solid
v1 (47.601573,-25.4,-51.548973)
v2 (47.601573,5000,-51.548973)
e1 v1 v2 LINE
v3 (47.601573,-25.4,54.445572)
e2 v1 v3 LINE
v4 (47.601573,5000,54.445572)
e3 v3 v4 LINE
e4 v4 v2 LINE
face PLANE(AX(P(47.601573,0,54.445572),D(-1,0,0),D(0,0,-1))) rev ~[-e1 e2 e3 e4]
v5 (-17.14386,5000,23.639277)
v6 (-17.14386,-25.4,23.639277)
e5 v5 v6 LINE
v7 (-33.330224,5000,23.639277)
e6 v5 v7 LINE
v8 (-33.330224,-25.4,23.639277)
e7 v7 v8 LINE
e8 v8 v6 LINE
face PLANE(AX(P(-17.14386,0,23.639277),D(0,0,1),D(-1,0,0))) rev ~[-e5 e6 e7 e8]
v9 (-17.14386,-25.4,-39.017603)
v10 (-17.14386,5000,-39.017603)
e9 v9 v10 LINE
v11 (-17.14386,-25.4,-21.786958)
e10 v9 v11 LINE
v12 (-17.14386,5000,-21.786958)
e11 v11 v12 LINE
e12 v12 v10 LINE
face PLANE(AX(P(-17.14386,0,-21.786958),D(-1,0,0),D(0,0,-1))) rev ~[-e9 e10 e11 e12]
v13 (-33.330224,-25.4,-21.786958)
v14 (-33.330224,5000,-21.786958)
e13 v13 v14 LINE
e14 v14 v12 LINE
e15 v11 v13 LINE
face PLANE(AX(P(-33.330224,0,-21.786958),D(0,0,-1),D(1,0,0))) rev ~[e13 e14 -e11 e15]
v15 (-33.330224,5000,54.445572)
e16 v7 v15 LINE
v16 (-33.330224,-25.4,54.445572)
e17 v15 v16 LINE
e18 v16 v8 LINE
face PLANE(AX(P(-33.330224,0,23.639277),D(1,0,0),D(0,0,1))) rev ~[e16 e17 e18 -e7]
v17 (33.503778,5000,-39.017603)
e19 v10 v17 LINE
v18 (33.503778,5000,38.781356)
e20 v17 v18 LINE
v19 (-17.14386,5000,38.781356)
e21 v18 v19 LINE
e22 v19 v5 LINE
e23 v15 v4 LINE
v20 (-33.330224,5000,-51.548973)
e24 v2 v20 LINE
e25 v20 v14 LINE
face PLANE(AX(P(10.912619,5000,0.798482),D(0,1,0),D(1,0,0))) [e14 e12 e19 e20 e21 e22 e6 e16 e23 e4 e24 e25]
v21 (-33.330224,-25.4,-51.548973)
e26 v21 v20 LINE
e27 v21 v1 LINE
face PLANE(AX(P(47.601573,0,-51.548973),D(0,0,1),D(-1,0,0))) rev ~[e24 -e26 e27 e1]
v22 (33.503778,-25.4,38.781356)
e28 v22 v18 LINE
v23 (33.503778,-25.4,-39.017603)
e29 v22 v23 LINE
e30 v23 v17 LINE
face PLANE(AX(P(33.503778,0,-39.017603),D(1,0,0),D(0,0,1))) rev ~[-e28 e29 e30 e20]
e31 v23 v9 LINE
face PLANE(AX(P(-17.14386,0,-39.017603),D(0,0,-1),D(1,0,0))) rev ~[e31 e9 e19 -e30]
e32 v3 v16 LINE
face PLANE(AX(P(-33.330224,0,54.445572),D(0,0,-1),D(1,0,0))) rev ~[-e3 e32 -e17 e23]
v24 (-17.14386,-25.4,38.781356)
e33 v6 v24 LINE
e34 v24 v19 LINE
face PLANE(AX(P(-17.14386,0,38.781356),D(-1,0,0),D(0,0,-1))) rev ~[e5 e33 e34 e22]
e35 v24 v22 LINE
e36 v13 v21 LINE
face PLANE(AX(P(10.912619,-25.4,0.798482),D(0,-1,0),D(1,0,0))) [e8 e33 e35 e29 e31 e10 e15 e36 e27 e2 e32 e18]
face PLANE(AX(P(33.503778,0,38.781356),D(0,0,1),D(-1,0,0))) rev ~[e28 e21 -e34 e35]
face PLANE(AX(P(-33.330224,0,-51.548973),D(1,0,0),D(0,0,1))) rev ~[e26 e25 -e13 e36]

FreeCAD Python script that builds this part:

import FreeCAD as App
import Part
import Sketcher
from FreeCAD import Vector
Q = App.Units.Quantity

doc = App.newDocument("Part")
body = doc.addObject("PartDesign::Body", "Body")

sketch1 = body.newObject("Sketcher::SketchObject", "Sketch")
sketch1.AttachmentSupport = (doc.getObject("XZ_Plane"), [""])
sketch1.MapMode = "FlatFace"
sketch1.addGeometry(Part.LineSegment(Vector(48, 54, 0), Vector(-33, 54, 0)), False)
sketch1.addGeometry(Part.LineSegment(Vector(-33, 54, 0), Vector(-33, 24, 0)), False)
sketch1.addGeometry(Part.LineSegment(Vector(-33, 24, 0), Vector(-17, 24, 0)), False)
sketch1.addGeometry(Part.LineSegment(Vector(-17, 24, 0), Vector(-17, 39, 0)), False)
sketch1.addGeometry(Part.LineSegment(Vector(-17, 39, 0), Vector(34, 39, 0)), False)
sketch1.addGeometry(Part.LineSegment(Vector(34, 39, 0), Vector(34, -39, 0)), False)
sketch1.addGeometry(Part.LineSegment(Vector(34, -39, 0), Vector(-17, -39, 0)), False)
sketch1.addGeometry(Part.LineSegment(Vector(-17, -39, 0), Vector(-17, -22, 0)), False)
sketch1.addGeometry(Part.LineSegment(Vector(-17, -22, 0), Vector(-33, -22, 0)), False)
sketch1.addGeometry(Part.LineSegment(Vector(-33, -22, 0), Vector(-33, -52, 0)), False)
sketch1.addGeometry(Part.LineSegment(Vector(-33, -52, 0), Vector(48, -52, 0)), False)
sketch1.addGeometry(Part.LineSegment(Vector(48, -52, 0), Vector(48, 54, 0)), False)
sketch1.addConstraint(Sketcher.Constraint("Coincident", 0, 2, 1, 1))
sketch1.addConstraint(Sketcher.Constraint("Coincident", 1, 2, 2, 1))
sketch1.addConstraint(Sketcher.Constraint("Coincident", 2, 2, 3, 1))
sketch1.addConstraint(Sketcher.Constraint("Coincident", 3, 2, 4, 1))
sketch1.addConstraint(Sketcher.Constraint("Coincident", 4, 2, 5, 1))
sketch1.addConstraint(Sketcher.Constraint("Coincident", 5, 2, 6, 1))
sketch1.addConstraint(Sketcher.Constraint("Coincident", 6, 2, 7, 1))
sketch1.addConstraint(Sketcher.Constraint("Coincident", 7, 2, 8, 1))
sketch1.addConstraint(Sketcher.Constraint("Coincident", 8, 2, 9, 1))
sketch1.addConstraint(Sketcher.Constraint("Coincident", 9, 2, 10, 1))
sketch1.addConstraint(Sketcher.Constraint("Coincident", 10, 2, 11, 1))
sketch1.addConstraint(Sketcher.Constraint("Coincident", 11, 2, 0, 1))
sketch1.addConstraint(Sketcher.Constraint("Horizontal", 0))
sketch1.addConstraint(Sketcher.Constraint("Vertical", 1))
sketch1.addConstraint(Sketcher.Constraint("Horizontal", 2))
sketch1.addConstraint(Sketcher.Constraint("Vertical", 3))
sketch1.addConstraint(Sketcher.Constraint("Horizontal", 4))
sketch1.addConstraint(Sketcher.Constraint("Vertical", 5))
sketch1.addConstraint(Sketcher.Constraint("Horizontal", 6))
sketch1.addConstraint(Sketcher.Constraint("Vertical", 7))
sketch1.addConstraint(Sketcher.Constraint("Horizontal", 8))
sketch1.addConstraint(Sketcher.Constraint("Vertical", 9))
sketch1.addConstraint(Sketcher.Constraint("Horizontal", 10))
sketch1.addConstraint(Sketcher.Constraint("Vertical", 11))
sketch1.addConstraint(Sketcher.Constraint("Vertical", 3, 2, 6, 2))
sketch1.addConstraint(Sketcher.Constraint("Vertical", 1, 2, 8, 2))
sketch1.addConstraint(Sketcher.Constraint("DistanceX", 1, 2, 4, 2, Q("66.834002 mm")))
sketch1.addConstraint(Sketcher.Constraint("DistanceY", 3, 1, 3, 2, Q("15.142079 mm")))
sketch1.addConstraint(Sketcher.Constraint("DistanceY", 5, 2, 5, 1, Q("77.798959 mm")))
sketch1.addConstraint(Sketcher.Constraint("DistanceX", 0, 2, 0, 1, Q("80.931797 mm")))
sketch1.addConstraint(Sketcher.Constraint("DistanceX", 2, 1, 2, 2, Q("16.186364 mm")))
sketch1.addConstraint(Sketcher.Constraint("DistanceY", 1, 2, 1, 1, Q("30.806295 mm")))
sketch1.addConstraint(Sketcher.Constraint("DistanceY", 7, 1, 7, 2, Q("17.230645 mm")))
sketch1.addConstraint(Sketcher.Constraint("DistanceY", 9, 2, 9, 1, Q("29.762015 mm")))
sketch1.addConstraint(Sketcher.Constraint("DistanceX", 2, 2, -1, 1, Q("17.14386 mm")))
sketch1.addConstraint(Sketcher.Constraint("DistanceY", -1, 1, 0, 2, Q("54.445572 mm")))
pad1 = body.newObject("PartDesign::Pad", "Pad")
pad1.Profile = sketch1
pad1.Length = 25.4

sketch2 = body.newObject("Sketcher::SketchObject", "Sketch001")
sketch2.AttachmentSupport = (doc.getObject("XZ_Plane"), [""])
sketch2.MapMode = "FlatFace"
sketch2.addGeometry(Part.LineSegment(Vector(-33, 54, 0), Vector(48, 54, 0)), False)
sketch2.addGeometry(Part.LineSegment(Vector(48, 54, 0), Vector(48, -52, 0)), False)
sketch2.addGeometry(Part.LineSegment(Vector(48, -52, 0), Vector(-33, -52, 0)), False)
sketch2.addGeometry(Part.LineSegment(Vector(-33, -52, 0), Vector(-33, -22, 0)), False)
sketch2.addGeometry(Part.LineSegment(Vector(-33, -22, 0), Vector(-17, -22, 0)), False)
sketch2.addGeometry(Part.LineSegment(Vector(-17, -22, 0), Vector(-17, -39, 0)), False)
sketch2.addGeometry(Part.LineSegment(Vector(-17, -39, 0), Vector(34, -39, 0)), False)
sketch2.addGeometry(Part.LineSegment(Vector(34, -39, 0), Vector(34, 39, 0)), False)
sketch2.addGeometry(Part.LineSegment(Vector(34, 39, 0), Vector(-17, 39, 0)), False)
sketch2.addGeometry(Part.LineSegment(Vector(-17, 39, 0), Vector(-17, 24, 0)), False)
sketch2.addGeometry(Part.LineSegment(Vector(-17, 24, 0), Vector(-33, 24, 0)), False)
sketch2.addGeometry(Part.LineSegment(Vector(-33, 24, 0), Vector(-33, 54, 0)), False)
sketch2.addConstraint(Sketcher.Constraint("Coincident", 0, 2, 1, 1))
sketch2.addConstraint(Sketcher.Constraint("Coincident", 1, 2, 2, 1))
sketch2.addConstraint(Sketcher.Constraint("Coincident", 2, 2, 3, 1))
sketch2.addConstraint(Sketcher.Constraint("Coincident", 3, 2, 4, 1))
sketch2.addConstraint(Sketcher.Constraint("Coincident", 4, 2, 5, 1))
sketch2.addConstraint(Sketcher.Constraint("Coincident", 5, 2, 6, 1))
sketch2.addConstraint(Sketcher.Constraint("Coincident", 6, 2, 7, 1))
sketch2.addConstraint(Sketcher.Constraint("Coincident", 7, 2, 8, 1))
sketch2.addConstraint(Sketcher.Constraint("Coincident", 8, 2, 9, 1))
sketch2.addConstraint(Sketcher.Constraint("Coincident", 9, 2, 10, 1))
sketch2.addConstraint(Sketcher.Constraint("Coincident", 10, 2, 11, 1))
sketch2.addConstraint(Sketcher.Constraint("Coincident", 11, 2, 0, 1))
sketch2.addConstraint(Sketcher.Constraint("Horizontal", 0))
sketch2.addConstraint(Sketcher.Constraint("Vertical", 1))
sketch2.addConstraint(Sketcher.Constraint("Horizontal", 2))
sketch2.addConstraint(Sketcher.Constraint("Vertical", 3))
sketch2.addConstraint(Sketcher.Constraint("Horizontal", 4))
sketch2.addConstraint(Sketcher.Constraint("Vertical", 5))
sketch2.addConstraint(Sketcher.Constraint("Horizontal", 6))
sketch2.addConstraint(Sketcher.Constraint("Vertical", 7))
sketch2.addConstraint(Sketcher.Constraint("Horizontal", 8))
sketch2.addConstraint(Sketcher.Constraint("Vertical", 9))
sketch2.addConstraint(Sketcher.Constraint("Horizontal", 10))
sketch2.addConstraint(Sketcher.Constraint("Vertical", 11))
sketch2.addConstraint(Sketcher.Constraint("Vertical", 5, 2, 8, 2))
sketch2.addConstraint(Sketcher.Constraint("Vertical", 3, 2, 10, 2))
sketch2.addConstraint(Sketcher.Constraint("DistanceX", 2, 2, 6, 2, Q("66.834002 mm")))
sketch2.addConstraint(Sketcher.Constraint("DistanceY", 7, 1, 7, 2, Q("77.798959 mm")))
sketch2.addConstraint(Sketcher.Constraint("DistanceY", 9, 2, 9, 1, Q("15.142079 mm")))
sketch2.addConstraint(Sketcher.Constraint("DistanceX", 0, 1, 0, 2, Q("80.931797 mm")))
sketch2.addConstraint(Sketcher.Constraint("DistanceX", 4, 1, 4, 2, Q("16.186364 mm")))
sketch2.addConstraint(Sketcher.Constraint("DistanceY", 1, 2, 1, 1, Q("105.994545 mm")))
sketch2.addConstraint(Sketcher.Constraint("DistanceY", 3, 1, 3, 2, Q("29.762015 mm")))
sketch2.addConstraint(Sketcher.Constraint("DistanceY", 5, 2, 5, 1, Q("17.230645 mm")))
sketch2.addConstraint(Sketcher.Constraint("DistanceX", 4, 2, -1, 1, Q("17.14386 mm")))
sketch2.addConstraint(Sketcher.Constraint("DistanceY", -1, 1, 0, 2, Q("54.445572 mm")))
pad2 = body.newObject("PartDesign::Pad", "Pad001")
pad2.Profile = sketch2
pad2.Length = 5000
pad2.Reversed = True

doc.recompute()
